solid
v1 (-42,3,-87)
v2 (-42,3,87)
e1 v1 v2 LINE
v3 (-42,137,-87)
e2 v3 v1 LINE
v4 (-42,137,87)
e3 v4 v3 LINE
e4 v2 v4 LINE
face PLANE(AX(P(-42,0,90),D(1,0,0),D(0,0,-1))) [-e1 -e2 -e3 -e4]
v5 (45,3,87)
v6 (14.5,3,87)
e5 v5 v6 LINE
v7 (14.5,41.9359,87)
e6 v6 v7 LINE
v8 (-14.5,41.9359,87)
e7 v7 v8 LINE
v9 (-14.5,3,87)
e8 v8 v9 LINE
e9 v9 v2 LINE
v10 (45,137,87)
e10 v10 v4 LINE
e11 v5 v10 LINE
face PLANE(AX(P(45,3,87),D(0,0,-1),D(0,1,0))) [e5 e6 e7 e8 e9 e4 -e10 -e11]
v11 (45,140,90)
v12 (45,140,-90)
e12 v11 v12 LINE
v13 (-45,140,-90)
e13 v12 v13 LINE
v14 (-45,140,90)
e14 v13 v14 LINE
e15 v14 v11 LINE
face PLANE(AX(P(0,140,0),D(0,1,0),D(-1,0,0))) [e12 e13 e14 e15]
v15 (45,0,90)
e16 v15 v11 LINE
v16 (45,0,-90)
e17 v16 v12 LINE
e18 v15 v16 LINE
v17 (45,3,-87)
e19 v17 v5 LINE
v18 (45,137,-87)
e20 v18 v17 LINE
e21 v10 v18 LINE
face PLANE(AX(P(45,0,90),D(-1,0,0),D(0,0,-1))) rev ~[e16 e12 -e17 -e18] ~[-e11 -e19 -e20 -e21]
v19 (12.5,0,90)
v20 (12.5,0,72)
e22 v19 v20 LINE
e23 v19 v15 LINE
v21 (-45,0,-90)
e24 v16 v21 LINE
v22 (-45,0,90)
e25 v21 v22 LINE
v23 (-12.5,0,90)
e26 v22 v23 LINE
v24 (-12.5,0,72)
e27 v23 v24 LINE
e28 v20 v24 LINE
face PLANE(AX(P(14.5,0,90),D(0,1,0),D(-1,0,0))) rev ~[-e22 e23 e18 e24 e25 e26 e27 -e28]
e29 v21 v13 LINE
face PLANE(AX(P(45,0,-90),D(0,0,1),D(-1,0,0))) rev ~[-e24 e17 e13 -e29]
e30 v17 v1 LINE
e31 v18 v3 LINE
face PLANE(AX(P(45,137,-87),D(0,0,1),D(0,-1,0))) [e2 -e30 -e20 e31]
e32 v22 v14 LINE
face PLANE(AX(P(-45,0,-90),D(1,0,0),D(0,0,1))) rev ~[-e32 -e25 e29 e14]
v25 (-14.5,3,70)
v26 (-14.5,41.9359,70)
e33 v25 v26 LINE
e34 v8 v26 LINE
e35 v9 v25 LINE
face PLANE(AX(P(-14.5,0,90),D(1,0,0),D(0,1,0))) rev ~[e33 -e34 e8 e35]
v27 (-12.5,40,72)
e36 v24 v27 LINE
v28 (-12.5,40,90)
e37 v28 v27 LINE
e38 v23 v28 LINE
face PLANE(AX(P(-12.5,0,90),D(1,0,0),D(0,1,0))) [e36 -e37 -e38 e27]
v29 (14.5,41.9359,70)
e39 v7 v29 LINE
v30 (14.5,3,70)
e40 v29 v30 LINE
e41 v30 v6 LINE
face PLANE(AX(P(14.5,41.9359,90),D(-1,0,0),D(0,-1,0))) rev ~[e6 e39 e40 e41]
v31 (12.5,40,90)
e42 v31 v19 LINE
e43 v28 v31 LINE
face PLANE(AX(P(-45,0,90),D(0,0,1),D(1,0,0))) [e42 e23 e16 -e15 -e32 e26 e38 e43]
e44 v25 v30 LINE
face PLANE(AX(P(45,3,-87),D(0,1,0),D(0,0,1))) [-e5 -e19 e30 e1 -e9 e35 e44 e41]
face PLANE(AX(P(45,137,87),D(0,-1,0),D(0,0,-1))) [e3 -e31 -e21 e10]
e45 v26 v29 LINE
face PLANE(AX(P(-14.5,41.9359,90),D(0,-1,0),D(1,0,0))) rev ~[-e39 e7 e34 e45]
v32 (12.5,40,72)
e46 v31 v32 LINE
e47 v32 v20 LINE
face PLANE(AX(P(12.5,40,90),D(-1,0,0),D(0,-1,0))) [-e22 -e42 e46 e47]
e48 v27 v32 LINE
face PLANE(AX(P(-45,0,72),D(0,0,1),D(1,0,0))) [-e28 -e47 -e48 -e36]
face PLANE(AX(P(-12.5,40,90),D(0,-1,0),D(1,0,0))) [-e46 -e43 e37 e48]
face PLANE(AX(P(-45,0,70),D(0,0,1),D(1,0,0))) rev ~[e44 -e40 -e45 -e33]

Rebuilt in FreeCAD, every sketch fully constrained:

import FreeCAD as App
import Part
import Sketcher

V = App.Vector

doc = App.newDocument("Part")
params = doc.addObject("Spreadsheet::Sheet", "Params")
for row, (alias, value) in enumerate([
    ("sketch1_width", "90 mm"),
    ("sketch1_height", "180 mm"),
    ("pad1_length", "140 mm"),
    ("sketch2_width", "134 mm"),
    ("sketch2_height", "174 mm"),
    ("pocket1_length", "87 mm"),
    ("sketch3_width", "29 mm"),
    ("pad2_length", "20 mm"),
    ("sketch4_width", "25 mm"),
    ("sketch4_height", "40 mm"),
    ("pocket2_length", "18 mm"),
], start=1):
    params.set(f"A{row}", alias)
    params.set(f"B{row}", "=" + value)
    params.setAlias(f"B{row}", alias)

body = doc.addObject("PartDesign::Body", "Body")

# Sketch on XZ plane
sketch1 = body.newObject("Sketcher::SketchObject", "Sketch")
sketch1.AttachmentSupport = (doc.getObject("XZ_Plane"), [""])
sketch1.MapMode = "FlatFace"
sketch1.addGeometry([
    Part.LineSegment(V(-45, -90, 0), V(-45, 90, 0)),
    Part.LineSegment(V(-45, 90, 0), V(45, 90, 0)),
    Part.LineSegment(V(45, 90, 0), V(45, -90, 0)),
    Part.LineSegment(V(45, -90, 0), V(-45, -90, 0)),
], False)
sketch1.addConstraint([
    Sketcher.Constraint("Coincident", 0, 2, 1, 1),
    Sketcher.Constraint("Coincident", 1, 2, 2, 1),
    Sketcher.Constraint("Coincident", 2, 2, 3, 1),
    Sketcher.Constraint("Coincident", 3, 2, 0, 1),
    Sketcher.Constraint("Vertical", 0),
    Sketcher.Constraint("Horizontal", 1),
    Sketcher.Constraint("Vertical", 2),
    Sketcher.Constraint("Horizontal", 3),
    Sketcher.Constraint("Symmetric", 0, 2, 2, 2, -1, 1),
    Sketcher.Constraint("DistanceX", 1, 1, 1, 2, 90.0),
    Sketcher.Constraint("DistanceY", 0, 1, 0, 2, 180.0),
])
sketch1.setExpression("Constraints[9]", "Params.sketch1_width")
sketch1.setExpression("Constraints[10]", "Params.sketch1_height")
pad1 = body.newObject("PartDesign::Pad", "Pad")
pad1.Profile = sketch1
pad1.setExpression("Length", "Params.pad1_length")
pad1.Reversed = True

# Sketch on YZ plane
sketch2 = body.newObject("Sketcher::SketchObject", "Sketch001")
sketch2.AttachmentSupport = (doc.getObject("YZ_Plane"), [""])
sketch2.MapMode = "FlatFace"
sketch2.AttachmentOffset = App.Placement(V(0, 0, 45), App.Rotation())
sketch2.addGeometry([
    Part.LineSegment(V(137, -87, 0), V(137, 87, 0)),
    Part.LineSegment(V(137, 87, 0), V(3, 87, 0)),
    Part.LineSegment(V(3, 87, 0), V(3, -87, 0)),
    Part.LineSegment(V(3, -87, 0), V(137, -87, 0)),
], False)
sketch2.addConstraint([
    Sketcher.Constraint("Coincident", 0, 2, 1, 1),
    Sketcher.Constraint("Coincident", 1, 2, 2, 1),
    Sketcher.Constraint("Coincident", 2, 2, 3, 1),
    Sketcher.Constraint("Coincident", 3, 2, 0, 1),
    Sketcher.Constraint("Vertical", 0),
    Sketcher.Constraint("Horizontal", 1),
    Sketcher.Constraint("Vertical", 2),
    Sketcher.Constraint("Horizontal", 3),
    Sketcher.Constraint("DistanceX", 1, 2, 1, 1, 134.0),
    Sketcher.Constraint("DistanceY", 0, 1, 0, 2, 174.0),
    Sketcher.Constraint("DistanceX", -1, 1, 1, 2, 3.0),
    Sketcher.Constraint("DistanceY", -1, 1, 0, 2, 87.0),
])
sketch2.setExpression("Constraints[8]", "Params.sketch2_width")
sketch2.setExpression("Constraints[9]", "Params.sketch2_height")
pocket1 = body.newObject("PartDesign::Pocket", "Pocket")
pocket1.Profile = sketch2
pocket1.setExpression("Length", "Params.pocket1_length")

# Sketch on XY plane
sketch3 = body.newObject("Sketcher::SketchObject", "Sketch002")
sketch3.AttachmentSupport = (doc.getObject("XY_Plane"), [""])
sketch3.MapMode = "FlatFace"
sketch3.AttachmentOffset = App.Placement(V(0, 0, 90), App.Rotation())
sketch3.addGeometry([
    Part.LineSegment(V(-14, 0, 0), V(14, 0, 0)),
    Part.LineSegment(V(14, 0, 0), V(14, 42, 0)),
    Part.LineSegment(V(14, 42, 0), V(-14, 42, 0)),
    Part.LineSegment(V(-14, 42, 0), V(-14, 0, 0)),
], False)
sketch3.addConstraint([
    Sketcher.Constraint("Coincident", 0, 2, 1, 1),
    Sketcher.Constraint("Coincident", 1, 2, 2, 1),
    Sketcher.Constraint("Coincident", 2, 2, 3, 1),
    Sketcher.Constraint("Coincident", 3, 2, 0, 1),
    Sketcher.Constraint("Horizontal", 0),
    Sketcher.Constraint("Vertical", 1),
    Sketcher.Constraint("Horizontal", 2),
    Sketcher.Constraint("Vertical", 3),
    Sketcher.Constraint("Symmetric", 0, 2, 3, 2, -1, 1),
    Sketcher.Constraint("DistanceX", 0, 1, 0, 2, 29.0),
    Sketcher.Constraint("DistanceY", 1, 1, 1, 2, 41.936),
])
sketch3.setExpression("Constraints[9]", "Params.sketch3_width")
pad2 = body.newObject("PartDesign::Pad", "Pad001")
pad2.Profile = sketch3
pad2.setExpression("Length", "Params.pad2_length")
pad2.Reversed = True

# Sketch on XY plane
sketch4 = body.newObject("Sketcher::SketchObject", "Sketch003")
sketch4.AttachmentSupport = (doc.getObject("XY_Plane"), [""])
sketch4.MapMode = "FlatFace"
sketch4.AttachmentOffset = App.Placement(V(0, 0, 90), App.Rotation())
sketch4.addGeometry([
    Part.LineSegment(V(-12, 0, 0), V(12, 0, 0)),
    Part.LineSegment(V(12, 0, 0), V(12, 40, 0)),
    Part.LineSegment(V(12, 40, 0), V(-12, 40, 0)),
    Part.LineSegment(V(-12, 40, 0), V(-12, 0, 0)),
], False)
sketch4.addConstraint([
    Sketcher.Constraint("Coincident", 0, 2, 1, 1),
    Sketcher.Constraint("Coincident", 1, 2, 2, 1),
    Sketcher.Constraint("Coincident", 2, 2, 3, 1),
    Sketcher.Constraint("Coincident", 3, 2, 0, 1),
    Sketcher.Constraint("Horizontal", 0),
    Sketcher.Constraint("Vertical", 1),
    Sketcher.Constraint("Horizontal", 2),
    Sketcher.Constraint("Vertical", 3),
    Sketcher.Constraint("Symmetric", 0, 2, 3, 2, -1, 1),
    Sketcher.Constraint("DistanceX", 0, 1, 0, 2, 25.0),
    Sketcher.Constraint("DistanceY", 1, 1, 1, 2, 40.0),
])
sketch4.setExpression("Constraints[9]", "Params.sketch4_width")
sketch4.setExpression("Constraints[10]", "Params.sketch4_height")
pocket2 = body.newObject("PartDesign::Pocket", "Pocket001")
pocket2.Profile = sketch4
pocket2.setExpression("Length", "Params.pocket2_length")

doc.recompute()
